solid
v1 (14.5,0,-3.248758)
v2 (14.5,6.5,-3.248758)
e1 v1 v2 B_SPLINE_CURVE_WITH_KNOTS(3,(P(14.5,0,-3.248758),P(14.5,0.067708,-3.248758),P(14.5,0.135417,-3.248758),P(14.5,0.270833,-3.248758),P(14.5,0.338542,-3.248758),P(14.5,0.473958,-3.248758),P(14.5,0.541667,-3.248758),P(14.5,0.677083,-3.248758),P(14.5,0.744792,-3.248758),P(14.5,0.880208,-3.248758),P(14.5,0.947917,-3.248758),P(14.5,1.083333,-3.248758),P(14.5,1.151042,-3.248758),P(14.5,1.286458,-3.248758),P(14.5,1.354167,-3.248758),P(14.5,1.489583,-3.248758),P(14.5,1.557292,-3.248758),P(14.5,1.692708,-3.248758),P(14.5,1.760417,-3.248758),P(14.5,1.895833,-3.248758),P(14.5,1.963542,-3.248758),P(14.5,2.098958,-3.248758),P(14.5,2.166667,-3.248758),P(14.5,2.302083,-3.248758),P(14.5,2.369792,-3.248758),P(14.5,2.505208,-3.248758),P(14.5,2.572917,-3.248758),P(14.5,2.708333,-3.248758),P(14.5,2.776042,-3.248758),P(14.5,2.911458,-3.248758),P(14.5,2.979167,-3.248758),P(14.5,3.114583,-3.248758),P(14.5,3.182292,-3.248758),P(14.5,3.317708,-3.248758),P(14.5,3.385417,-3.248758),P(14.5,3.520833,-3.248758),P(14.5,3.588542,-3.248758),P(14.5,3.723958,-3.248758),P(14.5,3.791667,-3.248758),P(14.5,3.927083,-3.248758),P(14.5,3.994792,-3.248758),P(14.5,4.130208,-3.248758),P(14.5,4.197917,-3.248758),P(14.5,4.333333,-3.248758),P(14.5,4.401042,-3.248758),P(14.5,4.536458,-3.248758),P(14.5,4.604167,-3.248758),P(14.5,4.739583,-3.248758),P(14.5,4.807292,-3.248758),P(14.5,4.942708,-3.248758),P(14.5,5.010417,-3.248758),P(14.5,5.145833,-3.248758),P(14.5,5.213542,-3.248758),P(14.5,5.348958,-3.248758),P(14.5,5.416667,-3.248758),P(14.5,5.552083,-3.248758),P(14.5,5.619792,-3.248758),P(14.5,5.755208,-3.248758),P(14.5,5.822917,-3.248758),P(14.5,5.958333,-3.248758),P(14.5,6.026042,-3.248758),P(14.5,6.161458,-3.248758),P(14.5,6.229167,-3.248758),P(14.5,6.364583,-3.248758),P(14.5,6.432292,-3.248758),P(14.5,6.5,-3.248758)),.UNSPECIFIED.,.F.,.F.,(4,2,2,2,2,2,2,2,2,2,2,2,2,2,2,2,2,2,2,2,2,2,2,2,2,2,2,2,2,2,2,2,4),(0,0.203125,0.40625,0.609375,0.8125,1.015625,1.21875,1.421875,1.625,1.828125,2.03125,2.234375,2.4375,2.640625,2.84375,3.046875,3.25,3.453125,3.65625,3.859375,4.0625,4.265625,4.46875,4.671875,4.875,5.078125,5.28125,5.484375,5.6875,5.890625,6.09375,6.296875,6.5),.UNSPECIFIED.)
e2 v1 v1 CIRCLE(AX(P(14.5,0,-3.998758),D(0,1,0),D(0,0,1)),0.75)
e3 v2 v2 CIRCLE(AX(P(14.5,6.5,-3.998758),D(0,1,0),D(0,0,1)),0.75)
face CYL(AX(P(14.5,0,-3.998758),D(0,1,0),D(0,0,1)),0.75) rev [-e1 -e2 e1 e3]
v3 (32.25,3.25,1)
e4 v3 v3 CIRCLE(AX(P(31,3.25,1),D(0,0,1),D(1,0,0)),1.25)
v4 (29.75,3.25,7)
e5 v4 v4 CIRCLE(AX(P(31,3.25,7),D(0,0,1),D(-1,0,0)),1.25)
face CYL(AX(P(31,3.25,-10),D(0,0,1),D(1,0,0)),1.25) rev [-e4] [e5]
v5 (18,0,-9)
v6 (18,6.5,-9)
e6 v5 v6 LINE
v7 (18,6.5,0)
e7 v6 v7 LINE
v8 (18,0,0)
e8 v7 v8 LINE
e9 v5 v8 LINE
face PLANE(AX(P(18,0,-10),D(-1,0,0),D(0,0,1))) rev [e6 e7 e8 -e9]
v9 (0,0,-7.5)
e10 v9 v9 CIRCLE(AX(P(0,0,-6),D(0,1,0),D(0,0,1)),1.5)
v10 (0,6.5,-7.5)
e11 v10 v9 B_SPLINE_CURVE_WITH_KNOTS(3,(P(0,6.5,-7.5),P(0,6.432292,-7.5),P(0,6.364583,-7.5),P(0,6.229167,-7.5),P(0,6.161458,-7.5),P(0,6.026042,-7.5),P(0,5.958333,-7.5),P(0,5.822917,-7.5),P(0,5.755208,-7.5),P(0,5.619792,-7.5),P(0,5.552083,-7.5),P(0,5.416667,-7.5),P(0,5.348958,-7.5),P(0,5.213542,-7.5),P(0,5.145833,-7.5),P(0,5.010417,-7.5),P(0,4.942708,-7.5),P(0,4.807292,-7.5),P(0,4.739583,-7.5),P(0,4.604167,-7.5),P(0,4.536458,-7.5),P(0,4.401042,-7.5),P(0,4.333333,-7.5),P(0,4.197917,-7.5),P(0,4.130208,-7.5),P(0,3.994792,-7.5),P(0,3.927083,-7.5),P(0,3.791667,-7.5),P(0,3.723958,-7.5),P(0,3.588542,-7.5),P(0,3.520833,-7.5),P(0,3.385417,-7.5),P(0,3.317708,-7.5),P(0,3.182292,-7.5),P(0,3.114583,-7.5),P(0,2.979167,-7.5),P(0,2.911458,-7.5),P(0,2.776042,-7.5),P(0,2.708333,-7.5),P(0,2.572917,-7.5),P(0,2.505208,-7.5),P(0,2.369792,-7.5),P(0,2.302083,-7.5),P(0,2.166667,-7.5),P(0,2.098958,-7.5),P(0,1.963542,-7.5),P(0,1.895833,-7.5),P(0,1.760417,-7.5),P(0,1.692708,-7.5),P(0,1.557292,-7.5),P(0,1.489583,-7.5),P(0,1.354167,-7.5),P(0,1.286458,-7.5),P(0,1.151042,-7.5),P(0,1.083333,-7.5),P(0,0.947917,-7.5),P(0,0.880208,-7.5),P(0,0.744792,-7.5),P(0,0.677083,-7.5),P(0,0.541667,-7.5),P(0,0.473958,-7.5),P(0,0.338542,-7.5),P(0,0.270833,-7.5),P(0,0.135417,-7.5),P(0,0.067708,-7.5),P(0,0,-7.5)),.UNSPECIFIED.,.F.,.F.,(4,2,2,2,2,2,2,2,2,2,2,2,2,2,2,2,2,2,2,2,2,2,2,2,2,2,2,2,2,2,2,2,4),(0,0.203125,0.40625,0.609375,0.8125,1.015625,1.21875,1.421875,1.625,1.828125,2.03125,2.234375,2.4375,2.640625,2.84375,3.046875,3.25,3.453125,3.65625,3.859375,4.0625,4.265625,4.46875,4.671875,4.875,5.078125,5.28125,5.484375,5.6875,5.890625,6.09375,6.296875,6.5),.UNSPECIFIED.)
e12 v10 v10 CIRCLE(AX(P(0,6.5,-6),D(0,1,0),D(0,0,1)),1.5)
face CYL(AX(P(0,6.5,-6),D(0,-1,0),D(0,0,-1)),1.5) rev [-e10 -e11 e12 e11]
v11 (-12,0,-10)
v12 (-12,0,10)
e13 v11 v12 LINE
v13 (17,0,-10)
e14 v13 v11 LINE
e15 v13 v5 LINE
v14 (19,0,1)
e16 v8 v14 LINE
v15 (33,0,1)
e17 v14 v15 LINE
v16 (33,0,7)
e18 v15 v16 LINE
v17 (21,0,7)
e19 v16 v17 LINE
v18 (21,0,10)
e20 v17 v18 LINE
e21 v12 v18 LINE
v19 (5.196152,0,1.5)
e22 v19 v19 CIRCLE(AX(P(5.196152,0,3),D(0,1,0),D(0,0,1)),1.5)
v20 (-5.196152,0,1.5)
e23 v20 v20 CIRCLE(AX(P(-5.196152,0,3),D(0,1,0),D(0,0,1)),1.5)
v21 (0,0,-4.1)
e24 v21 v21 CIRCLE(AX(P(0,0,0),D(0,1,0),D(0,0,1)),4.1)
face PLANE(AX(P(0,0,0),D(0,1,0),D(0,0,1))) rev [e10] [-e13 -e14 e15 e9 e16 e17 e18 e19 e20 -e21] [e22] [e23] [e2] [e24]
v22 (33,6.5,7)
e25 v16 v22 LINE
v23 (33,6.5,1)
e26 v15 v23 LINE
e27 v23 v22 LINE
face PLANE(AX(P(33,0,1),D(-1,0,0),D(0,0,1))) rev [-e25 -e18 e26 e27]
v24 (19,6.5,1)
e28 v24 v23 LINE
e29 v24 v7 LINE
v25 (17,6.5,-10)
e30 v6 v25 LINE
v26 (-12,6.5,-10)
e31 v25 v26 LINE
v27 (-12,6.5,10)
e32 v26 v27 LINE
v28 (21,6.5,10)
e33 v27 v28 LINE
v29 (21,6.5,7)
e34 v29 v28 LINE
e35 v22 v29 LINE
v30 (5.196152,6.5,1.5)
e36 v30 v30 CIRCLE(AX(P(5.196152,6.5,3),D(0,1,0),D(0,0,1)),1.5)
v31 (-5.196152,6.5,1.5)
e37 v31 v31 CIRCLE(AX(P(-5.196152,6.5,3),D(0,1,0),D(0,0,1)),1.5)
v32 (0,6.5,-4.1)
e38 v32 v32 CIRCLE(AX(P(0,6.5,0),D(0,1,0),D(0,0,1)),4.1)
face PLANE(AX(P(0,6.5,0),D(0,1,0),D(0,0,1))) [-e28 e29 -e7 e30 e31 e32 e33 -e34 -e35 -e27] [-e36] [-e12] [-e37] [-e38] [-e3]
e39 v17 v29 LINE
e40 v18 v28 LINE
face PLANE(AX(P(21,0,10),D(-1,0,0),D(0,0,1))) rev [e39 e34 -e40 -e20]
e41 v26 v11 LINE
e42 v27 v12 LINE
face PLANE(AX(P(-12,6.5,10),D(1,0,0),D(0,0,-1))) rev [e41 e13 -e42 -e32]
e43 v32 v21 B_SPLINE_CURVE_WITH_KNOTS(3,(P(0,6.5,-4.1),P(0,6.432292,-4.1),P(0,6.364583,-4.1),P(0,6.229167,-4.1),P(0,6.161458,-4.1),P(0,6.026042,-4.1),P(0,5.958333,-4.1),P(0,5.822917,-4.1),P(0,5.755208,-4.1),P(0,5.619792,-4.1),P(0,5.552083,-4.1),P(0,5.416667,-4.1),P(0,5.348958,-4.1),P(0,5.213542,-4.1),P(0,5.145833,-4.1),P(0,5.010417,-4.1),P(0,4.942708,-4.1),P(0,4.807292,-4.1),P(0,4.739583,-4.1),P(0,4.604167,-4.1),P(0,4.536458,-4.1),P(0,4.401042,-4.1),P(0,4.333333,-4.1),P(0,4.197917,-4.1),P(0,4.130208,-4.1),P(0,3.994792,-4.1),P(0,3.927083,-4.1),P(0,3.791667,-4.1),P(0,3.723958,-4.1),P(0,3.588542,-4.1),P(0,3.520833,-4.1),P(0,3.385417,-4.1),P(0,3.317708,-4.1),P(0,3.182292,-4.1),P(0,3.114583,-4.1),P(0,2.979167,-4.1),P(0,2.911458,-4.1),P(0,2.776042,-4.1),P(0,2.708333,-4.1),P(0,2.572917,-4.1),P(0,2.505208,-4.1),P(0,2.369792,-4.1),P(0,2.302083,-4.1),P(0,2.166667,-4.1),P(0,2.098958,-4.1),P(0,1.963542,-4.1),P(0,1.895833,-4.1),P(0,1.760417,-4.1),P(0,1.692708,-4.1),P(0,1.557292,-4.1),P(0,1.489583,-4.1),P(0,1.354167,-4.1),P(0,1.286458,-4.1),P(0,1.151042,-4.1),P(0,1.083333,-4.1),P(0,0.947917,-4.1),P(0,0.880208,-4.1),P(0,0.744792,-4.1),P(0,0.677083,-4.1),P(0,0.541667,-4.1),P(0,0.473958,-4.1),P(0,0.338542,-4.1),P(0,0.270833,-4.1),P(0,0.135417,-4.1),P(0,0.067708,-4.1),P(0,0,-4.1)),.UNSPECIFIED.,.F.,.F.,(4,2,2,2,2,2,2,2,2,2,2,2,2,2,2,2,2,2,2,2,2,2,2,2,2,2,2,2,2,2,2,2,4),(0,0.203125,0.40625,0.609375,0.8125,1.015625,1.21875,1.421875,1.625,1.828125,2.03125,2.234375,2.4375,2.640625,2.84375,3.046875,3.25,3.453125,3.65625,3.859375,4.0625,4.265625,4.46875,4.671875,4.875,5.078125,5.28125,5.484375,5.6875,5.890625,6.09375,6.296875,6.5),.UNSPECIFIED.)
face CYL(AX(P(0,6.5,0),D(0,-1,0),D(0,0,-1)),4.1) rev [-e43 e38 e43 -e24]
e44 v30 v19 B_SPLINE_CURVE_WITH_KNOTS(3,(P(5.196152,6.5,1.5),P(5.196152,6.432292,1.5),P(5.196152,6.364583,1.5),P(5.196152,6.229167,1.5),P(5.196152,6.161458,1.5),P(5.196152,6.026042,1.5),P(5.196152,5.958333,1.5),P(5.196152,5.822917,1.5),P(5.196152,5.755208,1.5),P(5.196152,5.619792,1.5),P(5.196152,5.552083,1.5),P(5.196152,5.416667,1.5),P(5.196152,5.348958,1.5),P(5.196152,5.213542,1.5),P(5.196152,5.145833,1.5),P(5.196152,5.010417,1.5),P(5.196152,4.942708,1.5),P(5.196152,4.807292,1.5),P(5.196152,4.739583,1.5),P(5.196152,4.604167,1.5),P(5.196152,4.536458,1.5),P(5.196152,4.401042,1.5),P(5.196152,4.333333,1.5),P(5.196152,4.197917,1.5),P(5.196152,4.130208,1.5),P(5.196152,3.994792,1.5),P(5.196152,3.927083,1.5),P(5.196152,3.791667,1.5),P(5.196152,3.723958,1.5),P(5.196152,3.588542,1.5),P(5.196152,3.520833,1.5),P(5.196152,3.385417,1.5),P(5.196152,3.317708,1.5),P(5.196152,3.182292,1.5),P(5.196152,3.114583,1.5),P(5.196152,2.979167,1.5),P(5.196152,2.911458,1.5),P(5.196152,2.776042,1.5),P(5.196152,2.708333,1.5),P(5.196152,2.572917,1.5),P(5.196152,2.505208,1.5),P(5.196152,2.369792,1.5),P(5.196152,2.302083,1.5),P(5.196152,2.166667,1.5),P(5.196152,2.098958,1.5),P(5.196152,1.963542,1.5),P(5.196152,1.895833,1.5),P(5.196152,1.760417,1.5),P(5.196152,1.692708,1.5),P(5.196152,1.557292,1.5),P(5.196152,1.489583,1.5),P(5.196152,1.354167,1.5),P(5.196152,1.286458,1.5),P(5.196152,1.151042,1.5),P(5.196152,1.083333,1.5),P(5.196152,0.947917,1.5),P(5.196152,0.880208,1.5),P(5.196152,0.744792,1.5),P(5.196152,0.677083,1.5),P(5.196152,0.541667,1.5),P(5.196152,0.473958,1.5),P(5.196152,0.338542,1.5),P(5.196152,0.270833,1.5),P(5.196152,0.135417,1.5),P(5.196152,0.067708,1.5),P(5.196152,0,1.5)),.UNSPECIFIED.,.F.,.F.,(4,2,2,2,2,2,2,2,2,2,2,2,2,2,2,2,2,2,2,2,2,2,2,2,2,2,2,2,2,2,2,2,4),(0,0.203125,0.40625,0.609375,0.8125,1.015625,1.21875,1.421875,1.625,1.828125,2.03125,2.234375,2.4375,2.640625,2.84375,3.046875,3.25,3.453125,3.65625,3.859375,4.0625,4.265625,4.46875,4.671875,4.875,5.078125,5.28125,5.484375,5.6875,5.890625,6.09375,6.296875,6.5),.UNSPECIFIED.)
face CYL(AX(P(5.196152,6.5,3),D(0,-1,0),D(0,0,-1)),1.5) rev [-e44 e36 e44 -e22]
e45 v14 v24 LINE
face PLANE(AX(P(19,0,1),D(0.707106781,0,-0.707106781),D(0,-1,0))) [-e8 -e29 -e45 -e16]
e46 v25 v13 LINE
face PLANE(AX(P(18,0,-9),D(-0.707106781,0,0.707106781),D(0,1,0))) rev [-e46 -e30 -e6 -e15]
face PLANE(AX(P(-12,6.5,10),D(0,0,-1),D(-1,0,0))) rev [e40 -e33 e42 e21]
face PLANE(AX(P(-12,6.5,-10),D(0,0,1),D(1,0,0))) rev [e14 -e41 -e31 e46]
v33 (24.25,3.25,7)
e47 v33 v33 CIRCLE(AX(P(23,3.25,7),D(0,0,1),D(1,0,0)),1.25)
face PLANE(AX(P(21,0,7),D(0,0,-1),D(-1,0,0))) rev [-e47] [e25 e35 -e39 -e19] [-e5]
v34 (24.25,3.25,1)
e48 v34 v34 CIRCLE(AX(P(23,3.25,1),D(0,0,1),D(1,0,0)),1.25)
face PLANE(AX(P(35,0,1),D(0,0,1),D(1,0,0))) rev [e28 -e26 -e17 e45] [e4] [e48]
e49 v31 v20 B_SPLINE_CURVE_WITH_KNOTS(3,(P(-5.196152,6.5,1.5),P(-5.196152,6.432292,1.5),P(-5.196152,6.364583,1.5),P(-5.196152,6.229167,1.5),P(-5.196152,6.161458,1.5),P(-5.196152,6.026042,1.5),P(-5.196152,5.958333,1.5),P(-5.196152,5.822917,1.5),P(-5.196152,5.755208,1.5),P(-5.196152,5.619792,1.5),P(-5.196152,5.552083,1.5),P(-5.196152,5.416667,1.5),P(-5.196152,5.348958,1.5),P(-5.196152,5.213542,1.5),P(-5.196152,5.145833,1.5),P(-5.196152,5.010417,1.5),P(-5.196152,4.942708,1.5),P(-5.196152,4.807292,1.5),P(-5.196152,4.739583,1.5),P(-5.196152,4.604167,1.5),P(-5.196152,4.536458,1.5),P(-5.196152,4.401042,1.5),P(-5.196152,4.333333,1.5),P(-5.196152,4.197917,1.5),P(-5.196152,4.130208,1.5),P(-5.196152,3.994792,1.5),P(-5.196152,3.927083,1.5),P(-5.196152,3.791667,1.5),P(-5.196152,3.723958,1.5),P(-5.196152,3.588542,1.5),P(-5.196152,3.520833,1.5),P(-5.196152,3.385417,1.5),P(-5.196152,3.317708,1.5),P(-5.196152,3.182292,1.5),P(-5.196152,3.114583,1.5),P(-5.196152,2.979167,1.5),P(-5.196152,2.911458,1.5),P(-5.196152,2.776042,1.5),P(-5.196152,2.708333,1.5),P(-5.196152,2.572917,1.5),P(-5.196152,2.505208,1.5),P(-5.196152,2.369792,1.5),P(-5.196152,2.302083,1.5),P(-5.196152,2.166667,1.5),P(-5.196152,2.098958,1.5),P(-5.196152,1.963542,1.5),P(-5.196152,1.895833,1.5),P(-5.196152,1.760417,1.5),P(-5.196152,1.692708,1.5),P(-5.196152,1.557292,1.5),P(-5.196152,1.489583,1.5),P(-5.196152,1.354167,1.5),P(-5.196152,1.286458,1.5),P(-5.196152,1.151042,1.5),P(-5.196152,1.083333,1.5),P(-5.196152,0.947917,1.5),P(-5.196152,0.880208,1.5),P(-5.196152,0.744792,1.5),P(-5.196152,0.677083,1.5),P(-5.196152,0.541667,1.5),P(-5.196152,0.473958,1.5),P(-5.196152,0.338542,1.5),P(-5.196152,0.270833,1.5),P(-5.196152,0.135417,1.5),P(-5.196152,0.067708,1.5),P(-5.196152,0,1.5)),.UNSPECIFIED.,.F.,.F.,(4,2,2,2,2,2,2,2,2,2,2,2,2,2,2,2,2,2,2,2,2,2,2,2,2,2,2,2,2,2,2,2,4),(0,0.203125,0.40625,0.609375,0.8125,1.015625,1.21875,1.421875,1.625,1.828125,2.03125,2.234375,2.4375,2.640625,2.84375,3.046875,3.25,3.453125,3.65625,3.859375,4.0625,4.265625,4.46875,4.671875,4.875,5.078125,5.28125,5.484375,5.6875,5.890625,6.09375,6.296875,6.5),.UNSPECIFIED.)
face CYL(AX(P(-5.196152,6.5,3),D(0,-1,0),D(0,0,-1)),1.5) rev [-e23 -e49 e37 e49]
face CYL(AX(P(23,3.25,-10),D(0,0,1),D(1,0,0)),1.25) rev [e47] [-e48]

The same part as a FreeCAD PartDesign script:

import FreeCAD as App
import Part
import Sketcher
from FreeCAD import Vector


def edges_at(feature, points):
    """Names of the edges that pass closest to the given points."""
    edges = feature.Shape.Edges
    near = lambda p: min(range(len(edges)), key=lambda i: edges[i].distToShape(Part.Vertex(*p))[0])
    return sorted({f"Edge{near(p) + 1}" for p in points})


def add_polygon(sketch, points):
    """Adds a closed chain of lines whose ends are joined by coincident constraints."""
    first, n = sketch.GeometryCount, len(points)
    for a, b in zip(points, points[1:] + points[:1]):
        sketch.addGeometry(Part.LineSegment(App.Vector(*a, 0), App.Vector(*b, 0)), False)
    for i in range(n):
        sketch.addConstraint(Sketcher.Constraint("Coincident", first + i, 2, first + (i + 1) % n, 1))

doc = App.newDocument("Part")
body = doc.addObject("PartDesign::Body", "Body")

# Sketch on XZ plane
sketch1 = body.newObject("Sketcher::SketchObject", "Sketch")
sketch1.AttachmentSupport = (doc.getObject("XZ_Plane"), [""])
sketch1.MapMode = "FlatFace"
add_polygon(sketch1, [(-12, -10), (-12, 10), (35, 10), (35, -10)])  # lines 0-3
sketch1.addGeometry(Part.Circle(Vector(-5.2, 3, 0), Vector(0, 0, 1), 1.5), False)  # 4
sketch1.addGeometry(Part.Circle(Vector(5.2, 3, 0), Vector(0, 0, 1), 1.5), False)  # 5
sketch1.addGeometry(Part.Circle(Vector(0, 0, 0), Vector(0, 0, 1), 4.1), False)  # 6
sketch1.addGeometry(Part.Circle(Vector(0, -6, 0), Vector(0, 0, 1), 1.5), False)  # 7
sketch1.addConstraint([
    Sketcher.Constraint("Vertical", 0),
    Sketcher.Constraint("Horizontal", 1),
    Sketcher.Constraint("Vertical", 2),
    Sketcher.Constraint("Horizontal", 3),
    Sketcher.Constraint("Coincident", 6, 3, -1, 1),
    Sketcher.Constraint("Equal", 4, 5),
    Sketcher.Constraint("Equal", 5, 7),
    Sketcher.Constraint("Symmetric", 4, 3, 5, 3, -2),
    Sketcher.Constraint("PointOnObject", 7, 3, -2),
    Sketcher.Constraint("Diameter", 4, 3.0),
    Sketcher.Constraint("Diameter", 6, 8.2),
    Sketcher.Constraint("DistanceX", 1, 1, 1, 2, 47.0),
    Sketcher.Constraint("DistanceY", 0, 1, 0, 2, 20.0),
    Sketcher.Constraint("DistanceY", -1, 1, 4, 3, 3.0),
    Sketcher.Constraint("DistanceY", 7, 3, -1, 1, 6.0),
    Sketcher.Constraint("DistanceX", 0, 2, -1, 1, 12.0),
    Sketcher.Constraint("DistanceY", -1, 1, 0, 2, 10.0),
    Sketcher.Constraint("DistanceX", 4, 3, -1, 1, 5.196152),
])
pad1 = body.newObject("PartDesign::Pad", "Pad")
pad1.Profile = sketch1
pad1.Length = 6.5
pad1.Reversed = True

# Sketch on XZ plane
sketch2 = body.newObject("Sketcher::SketchObject", "Sketch001")
sketch2.AttachmentSupport = (doc.getObject("XZ_Plane"), [""])
sketch2.MapMode = "FlatFace"
sketch2.AttachmentOffset = App.Placement(Vector(0, 0, -6.5), App.Rotation())
add_polygon(sketch2, [(21, 7), (21, 10), (33, 10), (33, 7)])  # lines 0-3
add_polygon(sketch2, [(18, -10), (18, 1), (35, 1), (35, -10)])  # lines 4-7
sketch2.addConstraint([
    Sketcher.Constraint("Vertical", 0),
    Sketcher.Constraint("Horizontal", 1),
    Sketcher.Constraint("Vertical", 2),
    Sketcher.Constraint("Horizontal", 3),
    Sketcher.Constraint("Vertical", 4),
    Sketcher.Constraint("Horizontal", 5),
    Sketcher.Constraint("Vertical", 6),
    Sketcher.Constraint("Horizontal", 7),
    Sketcher.Constraint("DistanceX", 1, 1, 1, 2, 12.0),
    Sketcher.Constraint("DistanceX", 5, 1, 5, 2, 17.0),
    Sketcher.Constraint("DistanceY", 0, 1, 0, 2, 3.0),
    Sketcher.Constraint("DistanceY", 4, 1, 4, 2, 11.0),
    Sketcher.Constraint("DistanceX", -1, 1, 0, 2, 21.0),
    Sketcher.Constraint("DistanceY", -1, 1, 0, 2, 10.0),
    Sketcher.Constraint("DistanceX", -1, 1, 4, 2, 18.0),
    Sketcher.Constraint("DistanceY", -1, 1, 4, 2, 1.0),
])
pocket1 = body.newObject("PartDesign::Pocket", "Pocket")
pocket1.Profile = sketch2
pocket1.Type = "ThroughAll"
pocket1.Reversed = True

# Sketch on XY plane
sketch3 = body.newObject("Sketcher::SketchObject", "Sketch002")
sketch3.AttachmentSupport = (doc.getObject("XY_Plane"), [""])
sketch3.MapMode = "FlatFace"
sketch3.AttachmentOffset = App.Placement(Vector(0, 0, 7), App.Rotation())
sketch3.addGeometry([
    Part.Circle(Vector(23, 3.2, 0), Vector(0, 0, 1), 1.2),
    Part.Circle(Vector(31, 3.2, 0), Vector(0, 0, 1), 1.2),
], False)
sketch3.addConstraint([
    Sketcher.Constraint("Equal", 0, 1),
    Sketcher.Constraint("Horizontal", 0, 3, 1, 3),
    Sketcher.Constraint("Diameter", 0, 2.5),
    Sketcher.Constraint("DistanceX", -1, 1, 0, 3, 23.0),
    Sketcher.Constraint("DistanceX", -1, 1, 1, 3, 31.0),
    Sketcher.Constraint("DistanceY", -1, 1, 0, 3, 3.25),
])
pocket2 = body.newObject("PartDesign::Pocket", "Pocket001")
pocket2.Profile = sketch3
pocket2.Type = "ThroughAll"

# Sketch on XZ plane
sketch4 = body.newObject("Sketcher::SketchObject", "Sketch003")
sketch4.AttachmentSupport = (doc.getObject("XZ_Plane"), [""])
sketch4.MapMode = "FlatFace"
sketch4.AttachmentOffset = App.Placement(Vector(0, 0, -6.5), App.Rotation())
sketch4.addGeometry(Part.Circle(Vector(14.5, -4, 0), Vector(0, 0, 1), 0.8), False)
sketch4.addConstraint([
    Sketcher.Constraint("Diameter", 0, 1.5),
    Sketcher.Constraint("DistanceX", -1, 1, 0, 3, 14.5),
    Sketcher.Constraint("DistanceY", 0, 3, -1, 1, 3.998758),
])
pocket3 = body.newObject("PartDesign::Pocket", "Pocket002")
pocket3.Profile = sketch4
pocket3.Type = "ThroughAll"
pocket3.Reversed = True
doc.recompute()

chamfer = body.newObject("PartDesign::Chamfer", "Chamfer")
chamfer.Base = (pocket3, edges_at(pocket3, [(18, 3.25, 1), (18, 3.25, -10)]))
chamfer.Size = 1

# Sketch on XZ plane
sketch5 = body.newObject("Sketcher::SketchObject", "Sketch004")
sketch5.AttachmentSupport = (doc.getObject("XZ_Plane"), [""])
sketch5.MapMode = "FlatFace"
sketch5.AttachmentOffset = App.Placement(Vector(0, 0, -6.5), App.Rotation())
add_polygon(sketch5, [(33, 1), (33, 10), (35, 10), (35, 1)])  # lines 0-3
sketch5.addConstraint([
    Sketcher.Constraint("Vertical", 0),
    Sketcher.Constraint("Horizontal", 1),
    Sketcher.Constraint("Vertical", 2),
    Sketcher.Constraint("Horizontal", 3),
    Sketcher.Constraint("DistanceX", 1, 1, 1, 2, 2.0),
    Sketcher.Constraint("DistanceY", 0, 1, 0, 2, 9.0),
    Sketcher.Constraint("DistanceX", -1, 1, 0, 2, 33.0),
    Sketcher.Constraint("DistanceY", -1, 1, 0, 2, 10.0),
])
pocket4 = body.newObject("PartDesign::Pocket", "Pocket003")
pocket4.Profile = sketch5
pocket4.Type = "ThroughAll"
pocket4.Reversed = True

doc.recompute()
